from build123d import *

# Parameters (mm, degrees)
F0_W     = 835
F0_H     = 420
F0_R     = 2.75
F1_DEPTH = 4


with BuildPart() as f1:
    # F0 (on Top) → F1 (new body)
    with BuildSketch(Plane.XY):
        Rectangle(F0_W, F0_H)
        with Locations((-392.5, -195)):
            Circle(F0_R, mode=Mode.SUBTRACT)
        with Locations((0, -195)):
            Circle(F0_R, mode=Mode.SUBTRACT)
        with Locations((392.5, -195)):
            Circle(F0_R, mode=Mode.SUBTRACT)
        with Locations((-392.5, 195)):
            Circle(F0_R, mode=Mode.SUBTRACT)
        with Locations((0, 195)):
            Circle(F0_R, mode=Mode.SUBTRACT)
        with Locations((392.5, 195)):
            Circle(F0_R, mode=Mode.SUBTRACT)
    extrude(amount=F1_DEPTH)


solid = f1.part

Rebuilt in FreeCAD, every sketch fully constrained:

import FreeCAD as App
import Part
import Sketcher

V = App.Vector

doc = App.newDocument("Part")
body = doc.addObject("PartDesign::Body", "Body")

# Sketch on XY plane
sketch1 = doc.addObject("Sketcher::SketchObject", "Sketch")
body.addObject(sketch1)
sketch1.AttachmentSupport = (doc.XY_Plane, [""])
sketch1.MapMode = "FlatFace"
sketch1.addGeometry(Part.LineSegment(V(-417.5, 210, 0), V(-417.5, -210, 0)), False)
sketch1.addGeometry(Part.LineSegment(V(-417.5, -210, 0), V(417.5, -210, 0)), False)
sketch1.addGeometry(Part.LineSegment(V(417.5, -210, 0), V(417.5, 210, 0)), False)
sketch1.addGeometry(Part.LineSegment(V(417.5, 210, 0), V(-417.5, 210, 0)), False)
sketch1.addGeometry(Part.Circle(V(-392.5, -195, 0), V(0, 0, 1), 2.75), False)
sketch1.addGeometry(Part.Circle(V(0, -195, 0), V(0, 0, 1), 2.75), False)
sketch1.addGeometry(Part.Circle(V(392.5, -195, 0), V(0, 0, 1), 2.75), False)
sketch1.addGeometry(Part.Circle(V(-392.5, 195, 0), V(0, 0, 1), 2.75), False)
sketch1.addGeometry(Part.Circle(V(0, 195, 0), V(0, 0, 1), 2.75), False)
sketch1.addGeometry(Part.Circle(V(392.5, 195, 0), V(0, 0, 1), 2.75), False)
sketch1.addConstraint(Sketcher.Constraint("Coincident", 0, 2, 1, 1))
sketch1.addConstraint(Sketcher.Constraint("Coincident", 1, 2, 2, 1))
sketch1.addConstraint(Sketcher.Constraint("Coincident", 2, 2, 3, 1))
sketch1.addConstraint(Sketcher.Constraint("Coincident", 3, 2, 0, 1))
sketch1.addConstraint(Sketcher.Constraint("Vertical", 0))
sketch1.addConstraint(Sketcher.Constraint("Horizontal", 1))
sketch1.addConstraint(Sketcher.Constraint("Vertical", 2))
sketch1.addConstraint(Sketcher.Constraint("Horizontal", 3))
sketch1.addConstraint(Sketcher.Constraint("Equal", 4, 5))
sketch1.addConstraint(Sketcher.Constraint("Equal", 5, 6))
sketch1.addConstraint(Sketcher.Constraint("Equal", 6, 7))
sketch1.addConstraint(Sketcher.Constraint("Equal", 7, 8))
sketch1.addConstraint(Sketcher.Constraint("Equal", 8, 9))
sketch1.addConstraint(Sketcher.Constraint("Symmetric", 6, 3, 7, 3, -1, 1))
sketch1.addConstraint(Sketcher.Constraint("Symmetric", 5, 3, 8, 3, -1, 1))
sketch1.addConstraint(Sketcher.Constraint("Symmetric", 4, 3, 9, 3, -1, 1))
sketch1.addConstraint(Sketcher.Constraint("Symmetric", 0, 2, 2, 2, -1, 1))
sketch1.addConstraint(Sketcher.Constraint("Symmetric", 4, 3, 6, 3, -2))
sketch1.addConstraint(Sketcher.Constraint("PointOnObject", 5, 3, -2))
sketch1.addConstraint(Sketcher.Constraint("Horizontal", 4, 3, 5, 3))
sketch1.addConstraint(Sketcher.Constraint("Diameter", 4, 5.5))
sketch1.addConstraint(Sketcher.Constraint("DistanceX", 1, 1, 1, 2, 835.0))
sketch1.addConstraint(Sketcher.Constraint("DistanceY", 0, 2, 0, 1, 420.0))
sketch1.addConstraint(Sketcher.Constraint("DistanceY", 4, 3, -1, 1, 195.0))
sketch1.addConstraint(Sketcher.Constraint("DistanceX", 4, 3, 6, 3, 785.0))
pad1 = doc.addObject("PartDesign::Pad", "Pad")
body.addObject(pad1)
pad1.Profile = sketch1
pad1.Length = 4

doc.recompute()
